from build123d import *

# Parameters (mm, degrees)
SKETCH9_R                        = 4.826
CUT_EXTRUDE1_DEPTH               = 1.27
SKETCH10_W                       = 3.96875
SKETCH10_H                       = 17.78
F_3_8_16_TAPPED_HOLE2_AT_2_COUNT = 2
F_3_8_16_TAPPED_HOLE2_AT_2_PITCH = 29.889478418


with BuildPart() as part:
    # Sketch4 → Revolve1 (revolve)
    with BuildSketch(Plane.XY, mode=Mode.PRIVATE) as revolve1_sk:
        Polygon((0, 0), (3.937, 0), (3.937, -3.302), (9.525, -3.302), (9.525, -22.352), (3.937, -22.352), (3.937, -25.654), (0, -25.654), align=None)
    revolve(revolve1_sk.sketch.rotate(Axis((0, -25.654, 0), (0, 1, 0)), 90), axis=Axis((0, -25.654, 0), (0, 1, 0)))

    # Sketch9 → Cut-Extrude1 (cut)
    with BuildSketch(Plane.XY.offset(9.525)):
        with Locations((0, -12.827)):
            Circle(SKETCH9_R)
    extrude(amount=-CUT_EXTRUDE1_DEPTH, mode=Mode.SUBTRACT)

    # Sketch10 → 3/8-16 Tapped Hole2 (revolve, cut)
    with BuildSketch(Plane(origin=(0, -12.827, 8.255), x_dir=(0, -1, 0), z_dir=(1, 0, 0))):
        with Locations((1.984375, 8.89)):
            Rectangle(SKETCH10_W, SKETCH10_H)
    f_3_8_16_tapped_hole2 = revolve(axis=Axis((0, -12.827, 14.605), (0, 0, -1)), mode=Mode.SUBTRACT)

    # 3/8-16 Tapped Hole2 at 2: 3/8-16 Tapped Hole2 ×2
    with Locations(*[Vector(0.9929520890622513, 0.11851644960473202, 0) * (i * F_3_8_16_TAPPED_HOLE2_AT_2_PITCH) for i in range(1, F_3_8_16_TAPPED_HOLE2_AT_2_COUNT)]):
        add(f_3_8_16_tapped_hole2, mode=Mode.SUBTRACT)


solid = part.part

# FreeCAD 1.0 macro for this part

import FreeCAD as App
import Part
import Sketcher

V = App.Vector
Q = App.Units.Quantity


def add_polygon(sketch, points):
    """Adds a closed chain of lines whose ends are joined by coincident constraints."""
    first, n = sketch.GeometryCount, len(points)
    for a, b in zip(points, points[1:] + points[:1]):
        sketch.addGeometry(Part.LineSegment(App.Vector(*a, 0), App.Vector(*b, 0)), False)
    for i in range(n):
        sketch.addConstraint(Sketcher.Constraint("Coincident", first + i, 2, first + (i + 1) % n, 1))

doc = App.newDocument("Part")
body = doc.addObject("PartDesign::Body", "Body")

# Sketch on XY plane
sketch1 = doc.addObject("Sketcher::SketchObject", "Sketch")
body.addObject(sketch1)
sketch1.AttachmentSupport = (doc.XY_Plane, [""])
sketch1.MapMode = "FlatFace"
add_polygon(sketch1, [(3.937, 0), (0, 0), (0, -25.654), (3.937, -25.654), (3.937, -22.352), (9.525, -22.352), (9.525, -3.302), (3.937, -3.302)])  # lines 0-7
sketch1.addConstraint([
    Sketcher.Constraint("Horizontal", 0),
    Sketcher.Constraint("Vertical", 1),
    Sketcher.Constraint("Horizontal", 2),
    Sketcher.Constraint("Vertical", 3),
    Sketcher.Constraint("Horizontal", 4),
    Sketcher.Constraint("Vertical", 5),
    Sketcher.Constraint("Horizontal", 6),
    Sketcher.Constraint("Vertical", 7),
    Sketcher.Constraint("Coincident", 0, 2, -1, 1),
    Sketcher.Constraint("Vertical", 3, 2, 6, 2),
    Sketcher.Constraint("Equal", 3, 7),
    Sketcher.Constraint("DistanceX", 4, 1, 4, 2, Q("0.22 in")),
    Sketcher.Constraint("DistanceY", 1, 2, 1, 1, Q("1.01 in")),
    Sketcher.Constraint("DistanceY", 3, 1, 3, 2, Q("0.13 in")),
    Sketcher.Constraint("DistanceX", 0, 2, 0, 1, Q("0.155 in")),
])
revolution = doc.addObject("PartDesign::Revolution", "Revolution")
body.addObject(revolution)
revolution.Profile = sketch1
revolution.ReferenceAxis = (sketch1, ["V_Axis"])
revolution.Angle = 360

# Sketch on XY plane
sketch2 = doc.addObject("Sketcher::SketchObject", "Sketch001")
body.addObject(sketch2)
sketch2.AttachmentSupport = (doc.XY_Plane, [""])
sketch2.MapMode = "FlatFace"
sketch2.AttachmentOffset = App.Placement(V(0, 0, 0.375 * 25.4), App.Rotation())
sketch2.addGeometry(Part.Circle(V(0, -12.827, 0), V(0, 0, 1), 4.826), False)
sketch2.addConstraint([
    Sketcher.Constraint("PointOnObject", 0, 3, -2),
    Sketcher.Constraint("Diameter", 0, Q("0.38 in")),
    Sketcher.Constraint("DistanceY", 0, 3, -1, 1, Q("0.505 in")),
])
pocket1 = doc.addObject("PartDesign::Pocket", "Pocket")
body.addObject(pocket1)
pocket1.Profile = sketch2
pocket1.Length = Q("0.05 in")

# Sketch on YZ plane
sketch3 = doc.addObject("Sketcher::SketchObject", "Sketch002")
body.addObject(sketch3)
sketch3.AttachmentSupport = (doc.YZ_Plane, [""])
sketch3.MapMode = "FlatFace"
add_polygon(sketch3, [(-12.827, -9.525), (-12.827, 8.255), (-16.79575, 8.255), (-16.79575, -9.525)])  # lines 0-3
sketch3.addGeometry(Part.LineSegment(V(-12.827, 8.255, 0), V(-12.827, -9.525, 0)), True)  # axis
sketch3.addConstraint([
    Sketcher.Constraint("Vertical", 0),
    Sketcher.Constraint("Horizontal", 1),
    Sketcher.Constraint("Vertical", 2),
    Sketcher.Constraint("Horizontal", 3),
    Sketcher.Constraint("Vertical", 4),
    Sketcher.Constraint("Coincident", 4, 1, 0, 2),
    Sketcher.Constraint("Horizontal", 2, 2, 4, 2),
    Sketcher.Constraint("DistanceY", 0, 1, 0, 2, Q("0.7 in")),
    Sketcher.Constraint("DistanceX", 1, 2, 1, 1, Q("0.15625 in")),
    Sketcher.Constraint("DistanceX", 0, 2, -1, 1, Q("0.505 in")),
    Sketcher.Constraint("DistanceY", -1, 1, 0, 2, Q("0.325 in")),
])
groove = doc.addObject("PartDesign::Groove", "Groove")
body.addObject(groove)
groove.Profile = sketch3
groove.ReferenceAxis = (sketch3, ["Axis0"])
groove.Angle = 360
doc.recompute()

datumline = doc.addObject("PartDesign::Line", "DatumLine")
body.addObject(datumline)
datumline.Placement = App.Placement(V(0, 0, 0), App.Rotation(V(0, 0, 1), V(0.992952089, 0.11851645, 0)))
linearpattern = doc.addObject("PartDesign::LinearPattern", "LinearPattern")
body.addObject(linearpattern)
linearpattern.Originals = [groove]
linearpattern.Direction = (datumline, [""])
linearpattern.Mode = "offset"
linearpattern.Offset = 29.889478
linearpattern.Occurrences = 2
body.Tip = linearpattern

doc.recompute()
